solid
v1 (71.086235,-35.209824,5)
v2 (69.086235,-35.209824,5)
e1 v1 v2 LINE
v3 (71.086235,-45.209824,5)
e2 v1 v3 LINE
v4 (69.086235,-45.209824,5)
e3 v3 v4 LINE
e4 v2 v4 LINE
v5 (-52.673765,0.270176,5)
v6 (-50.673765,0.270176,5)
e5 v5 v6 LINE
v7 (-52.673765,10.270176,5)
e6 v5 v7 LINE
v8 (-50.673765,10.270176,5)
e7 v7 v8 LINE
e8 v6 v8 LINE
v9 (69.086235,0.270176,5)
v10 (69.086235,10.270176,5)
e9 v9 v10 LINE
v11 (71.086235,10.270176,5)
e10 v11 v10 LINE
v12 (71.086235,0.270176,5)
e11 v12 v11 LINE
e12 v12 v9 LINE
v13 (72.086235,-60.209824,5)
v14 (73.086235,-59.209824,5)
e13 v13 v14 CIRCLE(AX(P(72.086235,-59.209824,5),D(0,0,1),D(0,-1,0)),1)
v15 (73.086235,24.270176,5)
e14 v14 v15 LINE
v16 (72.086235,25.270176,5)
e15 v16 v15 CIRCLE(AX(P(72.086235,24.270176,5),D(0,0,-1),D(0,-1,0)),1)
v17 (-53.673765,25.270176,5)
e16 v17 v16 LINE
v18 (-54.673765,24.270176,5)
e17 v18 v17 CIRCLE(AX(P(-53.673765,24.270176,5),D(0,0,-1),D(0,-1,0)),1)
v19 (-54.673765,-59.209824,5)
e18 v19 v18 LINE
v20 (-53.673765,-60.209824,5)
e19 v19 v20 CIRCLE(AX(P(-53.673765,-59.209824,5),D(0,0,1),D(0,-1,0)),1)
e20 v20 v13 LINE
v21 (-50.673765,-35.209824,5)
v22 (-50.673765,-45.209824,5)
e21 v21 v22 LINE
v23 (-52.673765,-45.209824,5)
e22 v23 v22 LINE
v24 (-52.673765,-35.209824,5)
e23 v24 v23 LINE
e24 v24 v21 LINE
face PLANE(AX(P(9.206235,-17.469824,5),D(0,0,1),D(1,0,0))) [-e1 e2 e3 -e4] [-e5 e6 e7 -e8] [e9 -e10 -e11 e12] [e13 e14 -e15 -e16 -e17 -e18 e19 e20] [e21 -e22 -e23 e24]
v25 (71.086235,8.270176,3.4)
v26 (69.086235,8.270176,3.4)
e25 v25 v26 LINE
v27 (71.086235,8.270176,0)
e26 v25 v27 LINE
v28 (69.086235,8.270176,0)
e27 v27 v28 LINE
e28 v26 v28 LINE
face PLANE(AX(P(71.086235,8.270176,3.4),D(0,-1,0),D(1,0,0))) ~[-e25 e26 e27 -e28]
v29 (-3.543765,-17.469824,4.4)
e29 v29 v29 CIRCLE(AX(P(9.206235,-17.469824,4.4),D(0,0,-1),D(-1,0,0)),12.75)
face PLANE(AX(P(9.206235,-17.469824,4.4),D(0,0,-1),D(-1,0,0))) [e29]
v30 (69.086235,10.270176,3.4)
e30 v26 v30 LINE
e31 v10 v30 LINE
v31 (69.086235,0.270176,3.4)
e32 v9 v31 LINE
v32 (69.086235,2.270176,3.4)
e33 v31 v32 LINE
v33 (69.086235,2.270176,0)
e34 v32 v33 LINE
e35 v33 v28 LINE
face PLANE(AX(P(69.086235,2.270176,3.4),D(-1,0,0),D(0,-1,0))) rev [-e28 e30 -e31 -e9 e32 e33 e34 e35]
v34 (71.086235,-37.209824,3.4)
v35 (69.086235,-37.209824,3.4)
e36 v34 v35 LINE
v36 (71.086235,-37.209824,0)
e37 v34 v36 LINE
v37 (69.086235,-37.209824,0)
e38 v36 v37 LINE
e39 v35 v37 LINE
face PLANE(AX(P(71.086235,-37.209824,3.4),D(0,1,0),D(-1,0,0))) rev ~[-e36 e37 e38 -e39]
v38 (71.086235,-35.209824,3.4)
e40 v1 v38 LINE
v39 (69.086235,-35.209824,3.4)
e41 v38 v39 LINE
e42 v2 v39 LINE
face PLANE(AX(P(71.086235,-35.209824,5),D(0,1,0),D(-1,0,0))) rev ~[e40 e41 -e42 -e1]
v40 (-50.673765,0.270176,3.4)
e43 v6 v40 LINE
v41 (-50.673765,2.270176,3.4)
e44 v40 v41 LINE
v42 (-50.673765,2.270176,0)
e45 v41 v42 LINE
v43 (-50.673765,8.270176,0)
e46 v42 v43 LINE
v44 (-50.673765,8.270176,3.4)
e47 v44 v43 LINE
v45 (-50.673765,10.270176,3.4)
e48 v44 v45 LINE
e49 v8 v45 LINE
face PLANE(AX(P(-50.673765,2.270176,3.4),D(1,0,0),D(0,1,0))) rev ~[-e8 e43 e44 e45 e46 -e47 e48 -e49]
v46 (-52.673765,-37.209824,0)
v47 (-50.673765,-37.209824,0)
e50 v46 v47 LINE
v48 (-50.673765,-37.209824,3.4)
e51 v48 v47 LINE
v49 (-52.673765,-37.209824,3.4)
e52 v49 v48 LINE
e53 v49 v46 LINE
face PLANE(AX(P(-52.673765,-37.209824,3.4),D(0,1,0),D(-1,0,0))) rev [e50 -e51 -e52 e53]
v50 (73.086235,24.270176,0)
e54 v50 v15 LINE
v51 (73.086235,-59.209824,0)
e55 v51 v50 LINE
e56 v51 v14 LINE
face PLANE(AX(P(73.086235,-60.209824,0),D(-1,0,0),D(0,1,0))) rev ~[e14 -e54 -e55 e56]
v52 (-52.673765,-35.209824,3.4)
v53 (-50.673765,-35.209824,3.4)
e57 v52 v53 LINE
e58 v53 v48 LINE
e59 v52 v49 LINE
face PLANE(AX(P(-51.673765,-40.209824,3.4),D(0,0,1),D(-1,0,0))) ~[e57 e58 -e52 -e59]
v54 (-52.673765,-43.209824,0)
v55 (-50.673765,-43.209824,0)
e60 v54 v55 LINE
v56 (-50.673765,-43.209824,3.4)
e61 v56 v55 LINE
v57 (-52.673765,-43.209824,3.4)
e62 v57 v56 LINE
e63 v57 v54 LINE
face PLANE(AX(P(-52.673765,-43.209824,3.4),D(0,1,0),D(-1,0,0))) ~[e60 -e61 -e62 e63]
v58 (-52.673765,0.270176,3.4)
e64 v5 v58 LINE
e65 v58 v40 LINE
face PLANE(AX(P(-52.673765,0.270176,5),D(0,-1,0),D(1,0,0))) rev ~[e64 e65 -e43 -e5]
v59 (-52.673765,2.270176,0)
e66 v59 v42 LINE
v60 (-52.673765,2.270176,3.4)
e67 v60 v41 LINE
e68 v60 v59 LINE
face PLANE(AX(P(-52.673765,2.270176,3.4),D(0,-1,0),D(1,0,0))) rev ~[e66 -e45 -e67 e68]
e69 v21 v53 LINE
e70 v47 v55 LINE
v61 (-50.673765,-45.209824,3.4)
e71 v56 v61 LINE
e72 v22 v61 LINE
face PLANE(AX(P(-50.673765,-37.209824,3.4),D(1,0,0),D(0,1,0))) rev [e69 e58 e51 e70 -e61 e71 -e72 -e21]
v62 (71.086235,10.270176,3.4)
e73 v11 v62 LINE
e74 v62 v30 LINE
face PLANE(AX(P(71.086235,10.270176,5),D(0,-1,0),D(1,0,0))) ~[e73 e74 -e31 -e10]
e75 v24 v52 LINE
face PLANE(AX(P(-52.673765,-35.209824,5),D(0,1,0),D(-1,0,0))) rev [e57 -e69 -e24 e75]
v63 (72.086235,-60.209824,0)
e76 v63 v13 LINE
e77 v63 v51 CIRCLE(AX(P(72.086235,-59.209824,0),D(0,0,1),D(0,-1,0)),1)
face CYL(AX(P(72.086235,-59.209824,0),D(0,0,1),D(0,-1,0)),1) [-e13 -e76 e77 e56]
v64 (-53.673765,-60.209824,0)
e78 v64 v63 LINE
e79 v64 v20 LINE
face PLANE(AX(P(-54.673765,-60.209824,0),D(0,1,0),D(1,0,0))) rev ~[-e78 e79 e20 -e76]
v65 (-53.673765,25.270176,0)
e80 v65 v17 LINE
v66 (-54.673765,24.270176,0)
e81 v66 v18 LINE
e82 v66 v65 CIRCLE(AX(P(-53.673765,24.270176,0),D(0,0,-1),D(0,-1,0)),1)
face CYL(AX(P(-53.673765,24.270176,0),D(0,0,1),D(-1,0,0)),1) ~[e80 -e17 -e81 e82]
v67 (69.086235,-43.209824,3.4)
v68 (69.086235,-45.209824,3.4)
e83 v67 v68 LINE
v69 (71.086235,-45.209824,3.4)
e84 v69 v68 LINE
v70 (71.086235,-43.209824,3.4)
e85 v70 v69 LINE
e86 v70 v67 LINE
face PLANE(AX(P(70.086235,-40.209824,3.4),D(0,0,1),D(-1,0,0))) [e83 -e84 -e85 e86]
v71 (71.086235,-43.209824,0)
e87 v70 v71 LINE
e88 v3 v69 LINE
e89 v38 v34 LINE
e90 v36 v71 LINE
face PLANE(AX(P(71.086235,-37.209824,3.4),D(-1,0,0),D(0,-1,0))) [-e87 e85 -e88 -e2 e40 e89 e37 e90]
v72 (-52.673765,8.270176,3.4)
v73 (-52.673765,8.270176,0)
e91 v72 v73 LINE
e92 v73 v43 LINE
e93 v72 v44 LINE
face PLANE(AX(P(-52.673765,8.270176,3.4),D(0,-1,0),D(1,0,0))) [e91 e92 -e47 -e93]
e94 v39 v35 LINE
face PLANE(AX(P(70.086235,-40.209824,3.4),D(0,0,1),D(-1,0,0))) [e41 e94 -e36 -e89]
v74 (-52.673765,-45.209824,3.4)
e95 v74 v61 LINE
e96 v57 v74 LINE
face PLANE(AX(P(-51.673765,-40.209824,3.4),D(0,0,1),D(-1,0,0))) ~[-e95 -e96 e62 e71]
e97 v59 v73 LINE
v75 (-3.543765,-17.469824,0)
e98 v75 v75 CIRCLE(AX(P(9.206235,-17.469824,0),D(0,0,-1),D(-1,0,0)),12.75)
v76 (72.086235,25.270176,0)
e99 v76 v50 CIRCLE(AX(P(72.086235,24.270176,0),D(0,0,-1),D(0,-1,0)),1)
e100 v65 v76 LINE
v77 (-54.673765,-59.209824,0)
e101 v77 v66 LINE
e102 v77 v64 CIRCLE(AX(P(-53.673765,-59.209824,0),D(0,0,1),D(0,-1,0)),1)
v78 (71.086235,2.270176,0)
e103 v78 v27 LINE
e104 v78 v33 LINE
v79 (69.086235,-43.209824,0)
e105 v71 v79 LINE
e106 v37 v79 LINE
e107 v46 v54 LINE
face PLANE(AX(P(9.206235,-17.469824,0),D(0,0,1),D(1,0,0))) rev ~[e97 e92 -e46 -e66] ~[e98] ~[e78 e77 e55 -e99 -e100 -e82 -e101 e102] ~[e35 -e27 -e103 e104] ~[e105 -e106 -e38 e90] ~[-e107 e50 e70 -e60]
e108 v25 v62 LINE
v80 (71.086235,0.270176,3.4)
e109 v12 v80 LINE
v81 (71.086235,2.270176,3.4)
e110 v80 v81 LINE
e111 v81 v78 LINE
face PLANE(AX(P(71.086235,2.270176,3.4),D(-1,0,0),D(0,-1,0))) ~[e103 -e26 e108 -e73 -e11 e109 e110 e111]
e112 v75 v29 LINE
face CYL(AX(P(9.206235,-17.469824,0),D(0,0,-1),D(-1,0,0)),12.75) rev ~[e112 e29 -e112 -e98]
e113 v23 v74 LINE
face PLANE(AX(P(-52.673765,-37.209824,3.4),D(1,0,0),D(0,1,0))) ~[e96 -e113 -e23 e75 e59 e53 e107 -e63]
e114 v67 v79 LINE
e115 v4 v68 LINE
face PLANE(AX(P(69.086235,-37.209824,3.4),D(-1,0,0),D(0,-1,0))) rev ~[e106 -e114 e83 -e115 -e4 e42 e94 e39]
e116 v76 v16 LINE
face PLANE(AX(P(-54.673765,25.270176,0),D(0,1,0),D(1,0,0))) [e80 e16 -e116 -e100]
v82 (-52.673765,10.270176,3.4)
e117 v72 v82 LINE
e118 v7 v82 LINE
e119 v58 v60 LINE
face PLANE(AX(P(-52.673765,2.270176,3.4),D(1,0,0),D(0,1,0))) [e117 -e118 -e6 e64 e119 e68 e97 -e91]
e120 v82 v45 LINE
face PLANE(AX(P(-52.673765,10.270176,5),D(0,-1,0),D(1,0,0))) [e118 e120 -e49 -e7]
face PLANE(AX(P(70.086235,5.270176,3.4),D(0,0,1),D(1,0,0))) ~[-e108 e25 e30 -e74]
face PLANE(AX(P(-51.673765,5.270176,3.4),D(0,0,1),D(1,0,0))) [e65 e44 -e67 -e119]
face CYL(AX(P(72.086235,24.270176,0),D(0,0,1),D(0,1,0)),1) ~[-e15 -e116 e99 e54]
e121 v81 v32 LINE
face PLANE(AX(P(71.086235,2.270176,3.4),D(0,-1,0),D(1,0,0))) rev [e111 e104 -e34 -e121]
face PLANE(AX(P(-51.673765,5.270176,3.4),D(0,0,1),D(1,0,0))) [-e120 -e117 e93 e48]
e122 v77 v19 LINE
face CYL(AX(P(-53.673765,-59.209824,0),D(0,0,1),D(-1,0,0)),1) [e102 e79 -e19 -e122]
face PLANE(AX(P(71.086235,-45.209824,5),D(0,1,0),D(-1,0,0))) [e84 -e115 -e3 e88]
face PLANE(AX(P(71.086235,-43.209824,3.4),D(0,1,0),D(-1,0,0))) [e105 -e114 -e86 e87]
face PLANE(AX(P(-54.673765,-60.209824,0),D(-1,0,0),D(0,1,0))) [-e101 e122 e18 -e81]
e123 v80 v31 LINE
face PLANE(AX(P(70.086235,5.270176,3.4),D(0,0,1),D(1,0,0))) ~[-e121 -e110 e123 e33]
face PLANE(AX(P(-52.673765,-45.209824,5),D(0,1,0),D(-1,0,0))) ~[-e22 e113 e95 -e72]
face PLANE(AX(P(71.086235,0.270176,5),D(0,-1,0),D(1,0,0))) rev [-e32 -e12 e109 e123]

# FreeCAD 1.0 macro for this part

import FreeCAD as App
import Part
import Sketcher
Q = App.Units.Quantity


def edges_at(feature, points):
    """Names of the edges that pass closest to the given points."""
    edges = feature.Shape.Edges
    near = lambda p: min(range(len(edges)), key=lambda i: edges[i].distToShape(Part.Vertex(*p))[0])
    return sorted({f"Edge{near(p) + 1}" for p in points})


def add_polygon(sketch, points):
    """Adds a closed chain of lines whose ends are joined by coincident constraints."""
    first, n = sketch.GeometryCount, len(points)
    for a, b in zip(points, points[1:] + points[:1]):
        sketch.addGeometry(Part.LineSegment(App.Vector(*a, 0), App.Vector(*b, 0)), False)
    for i in range(n):
        sketch.addConstraint(Sketcher.Constraint("Coincident", first + i, 2, first + (i + 1) % n, 1))

doc = App.newDocument("Part")
params = doc.addObject("Spreadsheet::Sheet", "Params")
for row, (alias, value) in enumerate([
    ("sketch1_width", "127.76 mm"),
    ("sketch1_height", "85.48 mm"),
    ("pad1_length", "5 mm"),
    ("sketch2_width", "2 mm"),
    ("sketch2_height", "10 mm"),
    ("pocket1_length", "1.6 mm"),
    ("sketch3_width", "2 mm"),
    ("sketch3_height", "6 mm"),
    ("sketch4_width", "2 mm"),
    ("sketch4_height", "10 mm"),
    ("pocket3_length", "1.6 mm"),
    ("sketch5_width", "2 mm"),
    ("sketch5_height", "6 mm"),
    ("sketch6_diameter", "25.5 mm"),
    ("pocket5_length", "4.4 mm"),
    ("fillet_radius", "1 mm"),
], start=1):
    params.set(f"A{row}", alias)
    params.set(f"B{row}", "=" + value)
    params.setAlias(f"B{row}", alias)

body = doc.addObject("PartDesign::Body", "Body")

# Sketch on XY plane
sketch1 = body.newObject("Sketcher::SketchObject", "Sketch")
sketch1.AttachmentSupport = (doc.getObject("XY_Plane"), [""])
sketch1.MapMode = "FlatFace"
add_polygon(sketch1, [(-54.673765, 25.270176), (-54.673765, -60.209824), (73.086235, -60.209824), (73.086235, 25.270176)])  # lines 0-3
sketch1.addConstraint([
    Sketcher.Constraint("Vertical", 0),
    Sketcher.Constraint("Horizontal", 1),
    Sketcher.Constraint("Vertical", 2),
    Sketcher.Constraint("Horizontal", 3),
    Sketcher.Constraint("DistanceX", 1, 1, 1, 2, Q("127.76 mm")),
    Sketcher.Constraint("DistanceY", 0, 2, 0, 1, Q("85.48 mm")),
    Sketcher.Constraint("DistanceX", 0, 2, -1, 1, Q("54.673765 mm")),
    Sketcher.Constraint("DistanceY", 0, 2, -1, 1, Q("60.209824 mm")),
])
sketch1.setExpression("Constraints[8]", "Params.sketch1_width")
sketch1.setExpression("Constraints[9]", "Params.sketch1_height")
pad1 = body.newObject("PartDesign::Pad", "Pad")
pad1.Profile = sketch1
pad1.setExpression("Length", "Params.pad1_length")

# Sketch on XY plane
sketch2 = body.newObject("Sketcher::SketchObject", "Sketch001")
sketch2.AttachmentSupport = (doc.getObject("XY_Plane"), [""])
sketch2.MapMode = "FlatFace"
sketch2.AttachmentOffset = App.Placement(App.Vector(0, 0, 5), App.Rotation())
add_polygon(sketch2, [(-52.673765, 10.270176), (-52.673765, 0.270176), (-50.673765, 0.270176), (-50.673765, 10.270176)])  # lines 0-3
sketch2.addConstraint([
    Sketcher.Constraint("Vertical", 0),
    Sketcher.Constraint("Horizontal", 1),
    Sketcher.Constraint("Vertical", 2),
    Sketcher.Constraint("Horizontal", 3),
    Sketcher.Constraint("DistanceX", 1, 1, 1, 2, Q("2 mm")),
    Sketcher.Constraint("DistanceY", 0, 2, 0, 1, Q("10 mm")),
    Sketcher.Constraint("DistanceX", 0, 2, -1, 1, Q("52.673765 mm")),
    Sketcher.Constraint("DistanceY", -1, 1, 0, 2, Q("0.270176 mm")),
])
sketch2.setExpression("Constraints[8]", "Params.sketch2_width")
sketch2.setExpression("Constraints[9]", "Params.sketch2_height")
pocket1 = body.newObject("PartDesign::Pocket", "Pocket")
pocket1.Profile = sketch2
pocket1.setExpression("Length", "Params.pocket1_length")

# Sketch on XY plane
sketch3 = body.newObject("Sketcher::SketchObject", "Sketch002")
sketch3.AttachmentSupport = (doc.getObject("XY_Plane"), [""])
sketch3.MapMode = "FlatFace"
sketch3.AttachmentOffset = App.Placement(App.Vector(0, 0, 3.4), App.Rotation())
add_polygon(sketch3, [(-52.673765, 8.270176), (-52.673765, 2.270176), (-50.673765, 2.270176), (-50.673765, 8.270176)])  # lines 0-3
sketch3.addConstraint([
    Sketcher.Constraint("Vertical", 0),
    Sketcher.Constraint("Horizontal", 1),
    Sketcher.Constraint("Vertical", 2),
    Sketcher.Constraint("Horizontal", 3),
    Sketcher.Constraint("DistanceX", 1, 1, 1, 2, Q("2 mm")),
    Sketcher.Constraint("DistanceY", 0, 2, 0, 1, Q("6 mm")),
    Sketcher.Constraint("DistanceX", 0, 2, -1, 1, Q("52.673765 mm")),
    Sketcher.Constraint("DistanceY", -1, 1, 0, 2, Q("2.270176 mm")),
])
sketch3.setExpression("Constraints[8]", "Params.sketch3_width")
sketch3.setExpression("Constraints[9]", "Params.sketch3_height")
pocket2 = body.newObject("PartDesign::Pocket", "Pocket001")
pocket2.Profile = sketch3
pocket2.Type = "ThroughAll"
doc.recompute()

datumplane = body.newObject("PartDesign::Plane", "DatumPlane")
datumplane.AttachmentSupport = (doc.getObject("YZ_Plane"), [""])
datumplane.MapMode = "FlatFace"
datumplane.AttachmentOffset = App.Placement(App.Vector(0, 0, 9.206235), App.Rotation())
mirrored = body.newObject("PartDesign::Mirrored", "Mirrored")
mirrored.Originals = [pocket1, pocket2]
mirrored.MirrorPlane = (datumplane, [""])
body.Tip = mirrored
doc.recompute()

datumplane2 = body.newObject("PartDesign::Plane", "DatumPlane001")
datumplane2.AttachmentSupport = (doc.getObject("XZ_Plane"), [""])
datumplane2.MapMode = "FlatFace"
datumplane2.AttachmentOffset = App.Placement(App.Vector(0, 0, 17.469824), App.Rotation())
mirrored2 = body.newObject("PartDesign::Mirrored", "Mirrored001")
mirrored2.Originals = [pocket1, pocket2]
mirrored2.MirrorPlane = (datumplane2, [""])
body.Tip = mirrored2

# Sketch on XY plane
sketch4 = body.newObject("Sketcher::SketchObject", "Sketch003")
sketch4.AttachmentSupport = (doc.getObject("XY_Plane"), [""])
sketch4.MapMode = "FlatFace"
sketch4.AttachmentOffset = App.Placement(App.Vector(0, 0, 5), App.Rotation())
add_polygon(sketch4, [(71.086235, -45.209824), (71.086235, -35.209824), (69.086235, -35.209824), (69.086235, -45.209824)])  # lines 0-3
sketch4.addConstraint([
    Sketcher.Constraint("Vertical", 0),
    Sketcher.Constraint("Horizontal", 1),
    Sketcher.Constraint("Vertical", 2),
    Sketcher.Constraint("Horizontal", 3),
    Sketcher.Constraint("DistanceX", 1, 2, 1, 1, Q("2 mm")),
    Sketcher.Constraint("DistanceY", 0, 1, 0, 2, Q("10 mm")),
    Sketcher.Constraint("DistanceX", -1, 1, 0, 2, Q("71.086235 mm")),
    Sketcher.Constraint("DistanceY", 0, 2, -1, 1, Q("35.209824 mm")),
])
sketch4.setExpression("Constraints[8]", "Params.sketch4_width")
sketch4.setExpression("Constraints[9]", "Params.sketch4_height")
pocket3 = body.newObject("PartDesign::Pocket", "Pocket002")
pocket3.Profile = sketch4
pocket3.setExpression("Length", "Params.pocket3_length")

# Sketch on XY plane
sketch5 = body.newObject("Sketcher::SketchObject", "Sketch004")
sketch5.AttachmentSupport = (doc.getObject("XY_Plane"), [""])
sketch5.MapMode = "FlatFace"
sketch5.AttachmentOffset = App.Placement(App.Vector(0, 0, 3.4), App.Rotation())
add_polygon(sketch5, [(71.086235, -43.209824), (71.086235, -37.209824), (69.086235, -37.209824), (69.086235, -43.209824)])  # lines 0-3
sketch5.addConstraint([
    Sketcher.Constraint("Vertical", 0),
    Sketcher.Constraint("Horizontal", 1),
    Sketcher.Constraint("Vertical", 2),
    Sketcher.Constraint("Horizontal", 3),
    Sketcher.Constraint("DistanceX", 1, 2, 1, 1, Q("2 mm")),
    Sketcher.Constraint("DistanceY", 0, 1, 0, 2, Q("6 mm")),
    Sketcher.Constraint("DistanceX", -1, 1, 0, 2, Q("71.086235 mm")),
    Sketcher.Constraint("DistanceY", 0, 2, -1, 1, Q("37.209824 mm")),
])
sketch5.setExpression("Constraints[8]", "Params.sketch5_width")
sketch5.setExpression("Constraints[9]", "Params.sketch5_height")
pocket4 = body.newObject("PartDesign::Pocket", "Pocket003")
pocket4.Profile = sketch5
pocket4.Type = "ThroughAll"

# Sketch on XY plane
sketch6 = body.newObject("Sketcher::SketchObject", "Sketch005")
sketch6.AttachmentSupport = (doc.getObject("XY_Plane"), [""])
sketch6.MapMode = "FlatFace"
sketch6.addGeometry(Part.Circle(App.Vector(9.206235, -17.469824, 0), App.Vector(0, 0, 1), 12.75), False)
sketch6.addConstraint([
    Sketcher.Constraint("Diameter", 0, Q("25.5 mm")),
    Sketcher.Constraint("DistanceX", -1, 1, 0, 3, Q("9.206235 mm")),
    Sketcher.Constraint("DistanceY", 0, 3, -1, 1, Q("17.469824 mm")),
])
sketch6.setExpression("Constraints[0]", "Params.sketch6_diameter")
pocket5 = body.newObject("PartDesign::Pocket", "Pocket004")
pocket5.Profile = sketch6
pocket5.setExpression("Length", "Params.pocket5_length")
pocket5.Reversed = True
doc.recompute()

fillet = body.newObject("PartDesign::Fillet", "Fillet")
fillet.Base = (pocket5, edges_at(pocket5, [
    (-54.674, 25.27, 2.5),
    (73.086, 25.27, 2.5),
    (73.086, -60.21, 2.5),
    (-54.674, -60.21, 2.5),
]))
fillet.setExpression("Radius", "Params.fillet_radius")

doc.recompute()
